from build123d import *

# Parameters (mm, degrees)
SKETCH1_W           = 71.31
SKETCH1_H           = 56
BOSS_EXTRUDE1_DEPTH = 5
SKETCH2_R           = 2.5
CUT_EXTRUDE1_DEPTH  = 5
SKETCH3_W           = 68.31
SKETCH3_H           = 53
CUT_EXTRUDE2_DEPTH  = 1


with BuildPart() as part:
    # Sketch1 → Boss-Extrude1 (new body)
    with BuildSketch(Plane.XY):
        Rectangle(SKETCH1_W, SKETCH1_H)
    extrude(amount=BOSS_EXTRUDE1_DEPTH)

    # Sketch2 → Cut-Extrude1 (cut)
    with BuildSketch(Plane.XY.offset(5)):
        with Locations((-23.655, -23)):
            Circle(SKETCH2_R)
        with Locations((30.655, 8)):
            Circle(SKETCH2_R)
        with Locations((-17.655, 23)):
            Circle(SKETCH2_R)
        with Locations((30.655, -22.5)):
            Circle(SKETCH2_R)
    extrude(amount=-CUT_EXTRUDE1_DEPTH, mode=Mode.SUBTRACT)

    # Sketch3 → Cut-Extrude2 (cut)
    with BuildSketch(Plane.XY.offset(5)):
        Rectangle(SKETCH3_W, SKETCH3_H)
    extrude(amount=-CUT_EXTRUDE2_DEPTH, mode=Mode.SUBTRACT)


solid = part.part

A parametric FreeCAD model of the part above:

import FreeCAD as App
import Part
import Sketcher

V = App.Vector


def add_polygon(sketch, points):
    """Adds a closed chain of lines whose ends are joined by coincident constraints."""
    first, n = sketch.GeometryCount, len(points)
    for a, b in zip(points, points[1:] + points[:1]):
        sketch.addGeometry(Part.LineSegment(App.Vector(*a, 0), App.Vector(*b, 0)), False)
    for i in range(n):
        sketch.addConstraint(Sketcher.Constraint("Coincident", first + i, 2, first + (i + 1) % n, 1))

doc = App.newDocument("Part")
body = doc.addObject("PartDesign::Body", "Body")

sketch1 = body.newObject("Sketcher::SketchObject", "Sketch")
sketch1.AttachmentSupport = (doc.getObject("XY_Plane"), [""])
sketch1.MapMode = "FlatFace"
add_polygon(sketch1, [(-36, 28), (-36, -28), (36, -28), (36, 28)])
sketch1.addConstraint(Sketcher.Constraint("Vertical", 0))
sketch1.addConstraint(Sketcher.Constraint("Horizontal", 1))
sketch1.addConstraint(Sketcher.Constraint("Vertical", 2))
sketch1.addConstraint(Sketcher.Constraint("Horizontal", 3))
sketch1.addConstraint(Sketcher.Constraint("Symmetric", 0, 2, 2, 2, -1, 1))
sketch1.addConstraint(Sketcher.Constraint("DistanceY", 0, 2, 0, 1, 56.0))
sketch1.addConstraint(Sketcher.Constraint("DistanceX", 1, 1, 1, 2, 71.31))
pad1 = body.newObject("PartDesign::Pad", "Pad")
pad1.Profile = sketch1
pad1.Length = 5

sketch2 = body.newObject("Sketcher::SketchObject", "Sketch001")
sketch2.AttachmentSupport = (doc.getObject("XY_Plane"), [""])
sketch2.MapMode = "FlatFace"
sketch2.AttachmentOffset = App.Placement(V(0, 0, 5), App.Rotation())
sketch2.addGeometry(Part.Circle(V(-23.7, -23, 0), V(0, 0, 1), 2.5), False)
sketch2.addGeometry(Part.Circle(V(30.7, 8, 0), V(0, 0, 1), 2.5), False)
sketch2.addGeometry(Part.Circle(V(-17.7, 23, 0), V(0, 0, 1), 2.5), False)
sketch2.addGeometry(Part.Circle(V(30.7, -22.5, 0), V(0, 0, 1), 2.5), False)
sketch2.addConstraint(Sketcher.Constraint("Equal", 0, 1))
sketch2.addConstraint(Sketcher.Constraint("Equal", 1, 2))
sketch2.addConstraint(Sketcher.Constraint("Equal", 2, 3))
sketch2.addConstraint(Sketcher.Constraint("Vertical", 1, 3, 3, 3))
sketch2.addConstraint(Sketcher.Constraint("Diameter", 0, 5.0))
sketch2.addConstraint(Sketcher.Constraint("DistanceY", 0, 3, -1, 1, 23.0))
sketch2.addConstraint(Sketcher.Constraint("DistanceY", -1, 1, 1, 3, 8.0))
sketch2.addConstraint(Sketcher.Constraint("DistanceY", -1, 1, 2, 3, 23.0))
sketch2.addConstraint(Sketcher.Constraint("DistanceX", 0, 3, 2, 3, 6.0))
sketch2.addConstraint(Sketcher.Constraint("DistanceY", 3, 3, -1, 1, 22.5))
sketch2.addConstraint(Sketcher.Constraint("DistanceX", 0, 3, 1, 3, 54.31))
sketch2.addConstraint(Sketcher.Constraint("DistanceX", 0, 3, -1, 1, 23.655))
pocket1 = body.newObject("PartDesign::Pocket", "Pocket")
pocket1.Profile = sketch2
pocket1.Length = 5

sketch3 = body.newObject("Sketcher::SketchObject", "Sketch002")
sketch3.AttachmentSupport = (doc.getObject("XY_Plane"), [""])
sketch3.MapMode = "FlatFace"
sketch3.AttachmentOffset = App.Placement(V(0, 0, 5), App.Rotation())
add_polygon(sketch3, [(-34, 26), (-34, -26), (34, -26), (34, 26)])
sketch3.addConstraint(Sketcher.Constraint("Vertical", 0))
sketch3.addConstraint(Sketcher.Constraint("Horizontal", 1))
sketch3.addConstraint(Sketcher.Constraint("Vertical", 2))
sketch3.addConstraint(Sketcher.Constraint("Horizontal", 3))
sketch3.addConstraint(Sketcher.Constraint("Symmetric", 0, 2, 2, 2, -1, 1))
sketch3.addConstraint(Sketcher.Constraint("DistanceY", 0, 2, 0, 1, 53.0))
sketch3.addConstraint(Sketcher.Constraint("DistanceX", 1, 1, 1, 2, 68.31))
pocket2 = body.newObject("PartDesign::Pocket", "Pocket001")
pocket2.Profile = sketch3
pocket2.Length = 1

doc.recompute()
